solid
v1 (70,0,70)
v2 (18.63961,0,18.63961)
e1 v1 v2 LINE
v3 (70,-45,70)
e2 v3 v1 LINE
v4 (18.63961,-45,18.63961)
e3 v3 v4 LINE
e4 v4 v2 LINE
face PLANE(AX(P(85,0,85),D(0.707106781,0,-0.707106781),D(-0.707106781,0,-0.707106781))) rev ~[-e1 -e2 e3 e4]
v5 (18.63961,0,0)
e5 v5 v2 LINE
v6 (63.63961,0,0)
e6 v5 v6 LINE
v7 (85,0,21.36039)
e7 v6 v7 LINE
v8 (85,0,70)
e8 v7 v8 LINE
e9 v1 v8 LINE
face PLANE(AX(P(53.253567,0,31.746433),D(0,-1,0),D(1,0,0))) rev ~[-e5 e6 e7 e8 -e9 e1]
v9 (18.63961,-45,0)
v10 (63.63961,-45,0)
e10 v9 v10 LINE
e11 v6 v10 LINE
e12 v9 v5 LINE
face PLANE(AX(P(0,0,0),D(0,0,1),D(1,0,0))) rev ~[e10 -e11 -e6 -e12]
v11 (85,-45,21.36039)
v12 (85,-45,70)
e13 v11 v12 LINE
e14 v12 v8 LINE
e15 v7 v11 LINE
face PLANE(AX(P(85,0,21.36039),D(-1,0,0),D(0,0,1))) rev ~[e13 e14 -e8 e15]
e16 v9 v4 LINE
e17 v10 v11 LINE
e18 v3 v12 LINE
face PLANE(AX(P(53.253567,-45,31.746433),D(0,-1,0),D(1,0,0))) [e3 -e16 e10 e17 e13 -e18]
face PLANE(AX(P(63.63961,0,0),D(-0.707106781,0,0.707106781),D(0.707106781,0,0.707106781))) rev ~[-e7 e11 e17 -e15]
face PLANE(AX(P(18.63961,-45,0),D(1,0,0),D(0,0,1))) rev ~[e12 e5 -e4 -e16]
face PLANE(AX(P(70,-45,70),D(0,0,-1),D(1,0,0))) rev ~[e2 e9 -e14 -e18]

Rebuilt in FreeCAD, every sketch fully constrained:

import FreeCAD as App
import Part
import Sketcher

doc = App.newDocument("Part")
body = doc.addObject("PartDesign::Body", "Body")

sketch1 = doc.addObject("Sketcher::SketchObject", "Sketch")
body.addObject(sketch1)
sketch1.AttachmentSupport = (doc.XZ_Plane, [""])
sketch1.MapMode = "FlatFace"
sketch1.addGeometry([
    Part.LineSegment(App.Vector(85, 85, 0), App.Vector(0, 0, 0)),
    Part.LineSegment(App.Vector(0, 0, 0), App.Vector(64, 0, 0)),
    Part.LineSegment(App.Vector(64, 0, 0), App.Vector(85, 21, 0)),
    Part.LineSegment(App.Vector(85, 21, 0), App.Vector(85, 85, 0)),
], False)
sketch1.addConstraint([
    Sketcher.Constraint("Coincident", 0, 2, 1, 1),
    Sketcher.Constraint("Coincident", 1, 2, 2, 1),
    Sketcher.Constraint("Coincident", 2, 2, 3, 1),
    Sketcher.Constraint("Coincident", 3, 2, 0, 1),
    Sketcher.Constraint("Horizontal", 1),
    Sketcher.Constraint("Vertical", 3),
    Sketcher.Constraint("Coincident", 0, 2, -1, 1),
    Sketcher.Constraint("Parallel", 0, 2),
    Sketcher.Constraint("Equal", 1, 3),
    Sketcher.Constraint("DistanceX", -1, 1, 2, 2, 85.0),
    Sketcher.Constraint("DistanceX", 1, 1, 1, 2, 63.63961),
])
pad1 = doc.addObject("PartDesign::Pad", "Pad")
body.addObject(pad1)
pad1.Profile = sketch1
pad1.Length = 45

sketch2 = doc.addObject("Sketcher::SketchObject", "Sketch001")
body.addObject(sketch2)
sketch2.AttachmentSupport = (doc.XZ_Plane, [""])
sketch2.MapMode = "FlatFace"
sketch2.AttachmentOffset = App.Placement(App.Vector(0, 0, 45), App.Rotation())
sketch2.addGeometry([
    Part.LineSegment(App.Vector(0, 0, 0), App.Vector(19, 0, 0)),
    Part.LineSegment(App.Vector(19, 0, 0), App.Vector(19, 19, 0)),
    Part.LineSegment(App.Vector(19, 19, 0), App.Vector(0, 0, 0)),
], False)
sketch2.addConstraint([
    Sketcher.Constraint("Coincident", 0, 2, 1, 1),
    Sketcher.Constraint("Coincident", 1, 2, 2, 1),
    Sketcher.Constraint("Coincident", 2, 2, 0, 1),
    Sketcher.Constraint("Horizontal", 0),
    Sketcher.Constraint("Vertical", 1),
    Sketcher.Constraint("Coincident", 2, 2, -1, 1),
    Sketcher.Constraint("Equal", 0, 1),
    Sketcher.Constraint("DistanceX", 0, 1, 0, 2, 18.63961),
])
pocket1 = doc.addObject("PartDesign::Pocket", "Pocket")
body.addObject(pocket1)
pocket1.Profile = sketch2
pocket1.Type = "ThroughAll"

sketch3 = doc.addObject("Sketcher::SketchObject", "Sketch002")
body.addObject(sketch3)
sketch3.AttachmentSupport = (doc.XZ_Plane, [""])
sketch3.MapMode = "FlatFace"
sketch3.AttachmentOffset = App.Placement(App.Vector(0, 0, 45), App.Rotation())
sketch3.addGeometry([
    Part.LineSegment(App.Vector(85, 85, 0), App.Vector(70, 70, 0)),
    Part.LineSegment(App.Vector(70, 70, 0), App.Vector(85, 70, 0)),
    Part.LineSegment(App.Vector(85, 70, 0), App.Vector(85, 85, 0)),
], False)
sketch3.addConstraint([
    Sketcher.Constraint("Coincident", 0, 2, 1, 1),
    Sketcher.Constraint("Coincident", 1, 2, 2, 1),
    Sketcher.Constraint("Coincident", 2, 2, 0, 1),
    Sketcher.Constraint("Horizontal", 1),
    Sketcher.Constraint("Vertical", 2),
    Sketcher.Constraint("Equal", 1, 2),
    Sketcher.Constraint("DistanceX", 1, 1, 1, 2, 15.0),
    Sketcher.Constraint("DistanceX", -1, 1, 0, 2, 70.0),
    Sketcher.Constraint("DistanceY", -1, 1, 0, 2, 70.0),
])
pocket2 = doc.addObject("PartDesign::Pocket", "Pocket001")
body.addObject(pocket2)
pocket2.Profile = sketch3
pocket2.Type = "ThroughAll"

doc.recompute()
